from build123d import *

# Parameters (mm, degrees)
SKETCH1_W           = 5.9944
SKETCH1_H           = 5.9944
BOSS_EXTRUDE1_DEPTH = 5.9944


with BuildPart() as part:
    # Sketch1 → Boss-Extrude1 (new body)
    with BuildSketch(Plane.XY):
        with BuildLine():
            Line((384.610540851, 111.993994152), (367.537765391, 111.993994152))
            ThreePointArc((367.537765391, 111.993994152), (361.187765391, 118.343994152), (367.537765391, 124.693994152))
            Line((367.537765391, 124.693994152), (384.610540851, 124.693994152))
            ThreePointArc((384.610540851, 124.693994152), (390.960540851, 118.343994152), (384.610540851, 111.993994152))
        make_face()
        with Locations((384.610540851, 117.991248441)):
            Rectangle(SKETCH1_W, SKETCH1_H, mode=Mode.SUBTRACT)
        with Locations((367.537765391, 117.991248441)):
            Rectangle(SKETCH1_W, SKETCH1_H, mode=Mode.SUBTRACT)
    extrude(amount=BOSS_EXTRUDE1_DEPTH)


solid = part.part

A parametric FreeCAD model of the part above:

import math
import FreeCAD as App
import Part
import Sketcher
Q = App.Units.Quantity

doc = App.newDocument("Part")
body = doc.addObject("PartDesign::Body", "Body")

# Sketch on XY plane
sketch1 = body.newObject("Sketcher::SketchObject", "Sketch")
sketch1.AttachmentSupport = (doc.getObject("XY_Plane"), [""])
sketch1.MapMode = "FlatFace"
sketch1.addGeometry(Part.LineSegment(App.Vector(367.537765, 111.993994, 0), App.Vector(384.610541, 111.993994, 0)), False)
sketch1.addGeometry(Part.ArcOfCircle(Part.Circle(App.Vector(384.610541, 118.343994, 0), App.Vector(0, 0, 1), 6.35), math.radians(-90), math.radians(90)), False)
sketch1.addGeometry(Part.LineSegment(App.Vector(384.610541, 124.693994, 0), App.Vector(367.537765, 124.693994, 0)), False)
sketch1.addGeometry(Part.ArcOfCircle(Part.Circle(App.Vector(367.537765, 118.343994, 0), App.Vector(0, 0, 1), 6.35), math.radians(90), math.radians(270)), False)
sketch1.addGeometry(Part.LineSegment(App.Vector(381.613341, 114.994048, 0), App.Vector(381.613341, 120.988448, 0)), False)
sketch1.addGeometry(Part.LineSegment(App.Vector(381.613341, 120.988448, 0), App.Vector(387.607741, 120.988448, 0)), False)
sketch1.addGeometry(Part.LineSegment(App.Vector(387.607741, 120.988448, 0), App.Vector(387.607741, 114.994048, 0)), False)
sketch1.addGeometry(Part.LineSegment(App.Vector(387.607741, 114.994048, 0), App.Vector(381.613341, 114.994048, 0)), False)
sketch1.addGeometry(Part.LineSegment(App.Vector(364.540565, 114.994048, 0), App.Vector(364.540565, 120.988448, 0)), False)
sketch1.addGeometry(Part.LineSegment(App.Vector(364.540565, 120.988448, 0), App.Vector(370.534965, 120.988448, 0)), False)
sketch1.addGeometry(Part.LineSegment(App.Vector(370.534965, 120.988448, 0), App.Vector(370.534965, 114.994048, 0)), False)
sketch1.addGeometry(Part.LineSegment(App.Vector(370.534965, 114.994048, 0), App.Vector(364.540565, 114.994048, 0)), False)
sketch1.addConstraint(Sketcher.Constraint("Tangent", 0, 2, 1, 1))
sketch1.addConstraint(Sketcher.Constraint("Tangent", 1, 2, 2, 1))
sketch1.addConstraint(Sketcher.Constraint("Tangent", 2, 2, 3, 1))
sketch1.addConstraint(Sketcher.Constraint("Tangent", 3, 2, 0, 1))
sketch1.addConstraint(Sketcher.Constraint("Coincident", 4, 2, 5, 1))
sketch1.addConstraint(Sketcher.Constraint("Coincident", 5, 2, 6, 1))
sketch1.addConstraint(Sketcher.Constraint("Coincident", 6, 2, 7, 1))
sketch1.addConstraint(Sketcher.Constraint("Coincident", 7, 2, 4, 1))
sketch1.addConstraint(Sketcher.Constraint("Coincident", 8, 2, 9, 1))
sketch1.addConstraint(Sketcher.Constraint("Coincident", 9, 2, 10, 1))
sketch1.addConstraint(Sketcher.Constraint("Coincident", 10, 2, 11, 1))
sketch1.addConstraint(Sketcher.Constraint("Coincident", 11, 2, 8, 1))
sketch1.addConstraint(Sketcher.Constraint("Horizontal", 0))
sketch1.addConstraint(Sketcher.Constraint("Horizontal", 2))
sketch1.addConstraint(Sketcher.Constraint("Vertical", 4))
sketch1.addConstraint(Sketcher.Constraint("Horizontal", 5))
sketch1.addConstraint(Sketcher.Constraint("Vertical", 6))
sketch1.addConstraint(Sketcher.Constraint("Horizontal", 7))
sketch1.addConstraint(Sketcher.Constraint("Vertical", 8))
sketch1.addConstraint(Sketcher.Constraint("Horizontal", 9))
sketch1.addConstraint(Sketcher.Constraint("Vertical", 10))
sketch1.addConstraint(Sketcher.Constraint("Horizontal", 11))
sketch1.addConstraint(Sketcher.Constraint("Horizontal", 5, 2, 8, 2))
sketch1.addConstraint(Sketcher.Constraint("Horizontal", 7, 2, 10, 2))
sketch1.addConstraint(Sketcher.Constraint("Equal", 7, 9))
sketch1.addConstraint(Sketcher.Constraint("Equal", 11, 4))
sketch1.addConstraint(Sketcher.Constraint("Radius", 1, Q("0.25 in")))
sketch1.addConstraint(Sketcher.Constraint("DistanceX", 5, 1, 5, 2, Q("0.236 in")))
sketch1.addConstraint(Sketcher.Constraint("DistanceX", 4, 2, 1, 3, Q("0.118 in")))
sketch1.addConstraint(Sketcher.Constraint("DistanceX", 8, 2, 3, 3, Q("0.118 in")))
sketch1.addConstraint(Sketcher.Constraint("DistanceX", 0, 1, 0, 2, Q("17.072775 mm")))
sketch1.addConstraint(Sketcher.Constraint("DistanceX", -1, 1, 1, 3, Q("384.610541 mm")))
sketch1.addConstraint(Sketcher.Constraint("DistanceY", -1, 1, 4, 2, Q("120.988448 mm")))
sketch1.addConstraint(Sketcher.Constraint("DistanceY", -1, 1, 1, 3, Q("118.343994 mm")))
pad1 = body.newObject("PartDesign::Pad", "Pad")
pad1.Profile = sketch1
pad1.Length = Q("0.236 in")

doc.recompute()
